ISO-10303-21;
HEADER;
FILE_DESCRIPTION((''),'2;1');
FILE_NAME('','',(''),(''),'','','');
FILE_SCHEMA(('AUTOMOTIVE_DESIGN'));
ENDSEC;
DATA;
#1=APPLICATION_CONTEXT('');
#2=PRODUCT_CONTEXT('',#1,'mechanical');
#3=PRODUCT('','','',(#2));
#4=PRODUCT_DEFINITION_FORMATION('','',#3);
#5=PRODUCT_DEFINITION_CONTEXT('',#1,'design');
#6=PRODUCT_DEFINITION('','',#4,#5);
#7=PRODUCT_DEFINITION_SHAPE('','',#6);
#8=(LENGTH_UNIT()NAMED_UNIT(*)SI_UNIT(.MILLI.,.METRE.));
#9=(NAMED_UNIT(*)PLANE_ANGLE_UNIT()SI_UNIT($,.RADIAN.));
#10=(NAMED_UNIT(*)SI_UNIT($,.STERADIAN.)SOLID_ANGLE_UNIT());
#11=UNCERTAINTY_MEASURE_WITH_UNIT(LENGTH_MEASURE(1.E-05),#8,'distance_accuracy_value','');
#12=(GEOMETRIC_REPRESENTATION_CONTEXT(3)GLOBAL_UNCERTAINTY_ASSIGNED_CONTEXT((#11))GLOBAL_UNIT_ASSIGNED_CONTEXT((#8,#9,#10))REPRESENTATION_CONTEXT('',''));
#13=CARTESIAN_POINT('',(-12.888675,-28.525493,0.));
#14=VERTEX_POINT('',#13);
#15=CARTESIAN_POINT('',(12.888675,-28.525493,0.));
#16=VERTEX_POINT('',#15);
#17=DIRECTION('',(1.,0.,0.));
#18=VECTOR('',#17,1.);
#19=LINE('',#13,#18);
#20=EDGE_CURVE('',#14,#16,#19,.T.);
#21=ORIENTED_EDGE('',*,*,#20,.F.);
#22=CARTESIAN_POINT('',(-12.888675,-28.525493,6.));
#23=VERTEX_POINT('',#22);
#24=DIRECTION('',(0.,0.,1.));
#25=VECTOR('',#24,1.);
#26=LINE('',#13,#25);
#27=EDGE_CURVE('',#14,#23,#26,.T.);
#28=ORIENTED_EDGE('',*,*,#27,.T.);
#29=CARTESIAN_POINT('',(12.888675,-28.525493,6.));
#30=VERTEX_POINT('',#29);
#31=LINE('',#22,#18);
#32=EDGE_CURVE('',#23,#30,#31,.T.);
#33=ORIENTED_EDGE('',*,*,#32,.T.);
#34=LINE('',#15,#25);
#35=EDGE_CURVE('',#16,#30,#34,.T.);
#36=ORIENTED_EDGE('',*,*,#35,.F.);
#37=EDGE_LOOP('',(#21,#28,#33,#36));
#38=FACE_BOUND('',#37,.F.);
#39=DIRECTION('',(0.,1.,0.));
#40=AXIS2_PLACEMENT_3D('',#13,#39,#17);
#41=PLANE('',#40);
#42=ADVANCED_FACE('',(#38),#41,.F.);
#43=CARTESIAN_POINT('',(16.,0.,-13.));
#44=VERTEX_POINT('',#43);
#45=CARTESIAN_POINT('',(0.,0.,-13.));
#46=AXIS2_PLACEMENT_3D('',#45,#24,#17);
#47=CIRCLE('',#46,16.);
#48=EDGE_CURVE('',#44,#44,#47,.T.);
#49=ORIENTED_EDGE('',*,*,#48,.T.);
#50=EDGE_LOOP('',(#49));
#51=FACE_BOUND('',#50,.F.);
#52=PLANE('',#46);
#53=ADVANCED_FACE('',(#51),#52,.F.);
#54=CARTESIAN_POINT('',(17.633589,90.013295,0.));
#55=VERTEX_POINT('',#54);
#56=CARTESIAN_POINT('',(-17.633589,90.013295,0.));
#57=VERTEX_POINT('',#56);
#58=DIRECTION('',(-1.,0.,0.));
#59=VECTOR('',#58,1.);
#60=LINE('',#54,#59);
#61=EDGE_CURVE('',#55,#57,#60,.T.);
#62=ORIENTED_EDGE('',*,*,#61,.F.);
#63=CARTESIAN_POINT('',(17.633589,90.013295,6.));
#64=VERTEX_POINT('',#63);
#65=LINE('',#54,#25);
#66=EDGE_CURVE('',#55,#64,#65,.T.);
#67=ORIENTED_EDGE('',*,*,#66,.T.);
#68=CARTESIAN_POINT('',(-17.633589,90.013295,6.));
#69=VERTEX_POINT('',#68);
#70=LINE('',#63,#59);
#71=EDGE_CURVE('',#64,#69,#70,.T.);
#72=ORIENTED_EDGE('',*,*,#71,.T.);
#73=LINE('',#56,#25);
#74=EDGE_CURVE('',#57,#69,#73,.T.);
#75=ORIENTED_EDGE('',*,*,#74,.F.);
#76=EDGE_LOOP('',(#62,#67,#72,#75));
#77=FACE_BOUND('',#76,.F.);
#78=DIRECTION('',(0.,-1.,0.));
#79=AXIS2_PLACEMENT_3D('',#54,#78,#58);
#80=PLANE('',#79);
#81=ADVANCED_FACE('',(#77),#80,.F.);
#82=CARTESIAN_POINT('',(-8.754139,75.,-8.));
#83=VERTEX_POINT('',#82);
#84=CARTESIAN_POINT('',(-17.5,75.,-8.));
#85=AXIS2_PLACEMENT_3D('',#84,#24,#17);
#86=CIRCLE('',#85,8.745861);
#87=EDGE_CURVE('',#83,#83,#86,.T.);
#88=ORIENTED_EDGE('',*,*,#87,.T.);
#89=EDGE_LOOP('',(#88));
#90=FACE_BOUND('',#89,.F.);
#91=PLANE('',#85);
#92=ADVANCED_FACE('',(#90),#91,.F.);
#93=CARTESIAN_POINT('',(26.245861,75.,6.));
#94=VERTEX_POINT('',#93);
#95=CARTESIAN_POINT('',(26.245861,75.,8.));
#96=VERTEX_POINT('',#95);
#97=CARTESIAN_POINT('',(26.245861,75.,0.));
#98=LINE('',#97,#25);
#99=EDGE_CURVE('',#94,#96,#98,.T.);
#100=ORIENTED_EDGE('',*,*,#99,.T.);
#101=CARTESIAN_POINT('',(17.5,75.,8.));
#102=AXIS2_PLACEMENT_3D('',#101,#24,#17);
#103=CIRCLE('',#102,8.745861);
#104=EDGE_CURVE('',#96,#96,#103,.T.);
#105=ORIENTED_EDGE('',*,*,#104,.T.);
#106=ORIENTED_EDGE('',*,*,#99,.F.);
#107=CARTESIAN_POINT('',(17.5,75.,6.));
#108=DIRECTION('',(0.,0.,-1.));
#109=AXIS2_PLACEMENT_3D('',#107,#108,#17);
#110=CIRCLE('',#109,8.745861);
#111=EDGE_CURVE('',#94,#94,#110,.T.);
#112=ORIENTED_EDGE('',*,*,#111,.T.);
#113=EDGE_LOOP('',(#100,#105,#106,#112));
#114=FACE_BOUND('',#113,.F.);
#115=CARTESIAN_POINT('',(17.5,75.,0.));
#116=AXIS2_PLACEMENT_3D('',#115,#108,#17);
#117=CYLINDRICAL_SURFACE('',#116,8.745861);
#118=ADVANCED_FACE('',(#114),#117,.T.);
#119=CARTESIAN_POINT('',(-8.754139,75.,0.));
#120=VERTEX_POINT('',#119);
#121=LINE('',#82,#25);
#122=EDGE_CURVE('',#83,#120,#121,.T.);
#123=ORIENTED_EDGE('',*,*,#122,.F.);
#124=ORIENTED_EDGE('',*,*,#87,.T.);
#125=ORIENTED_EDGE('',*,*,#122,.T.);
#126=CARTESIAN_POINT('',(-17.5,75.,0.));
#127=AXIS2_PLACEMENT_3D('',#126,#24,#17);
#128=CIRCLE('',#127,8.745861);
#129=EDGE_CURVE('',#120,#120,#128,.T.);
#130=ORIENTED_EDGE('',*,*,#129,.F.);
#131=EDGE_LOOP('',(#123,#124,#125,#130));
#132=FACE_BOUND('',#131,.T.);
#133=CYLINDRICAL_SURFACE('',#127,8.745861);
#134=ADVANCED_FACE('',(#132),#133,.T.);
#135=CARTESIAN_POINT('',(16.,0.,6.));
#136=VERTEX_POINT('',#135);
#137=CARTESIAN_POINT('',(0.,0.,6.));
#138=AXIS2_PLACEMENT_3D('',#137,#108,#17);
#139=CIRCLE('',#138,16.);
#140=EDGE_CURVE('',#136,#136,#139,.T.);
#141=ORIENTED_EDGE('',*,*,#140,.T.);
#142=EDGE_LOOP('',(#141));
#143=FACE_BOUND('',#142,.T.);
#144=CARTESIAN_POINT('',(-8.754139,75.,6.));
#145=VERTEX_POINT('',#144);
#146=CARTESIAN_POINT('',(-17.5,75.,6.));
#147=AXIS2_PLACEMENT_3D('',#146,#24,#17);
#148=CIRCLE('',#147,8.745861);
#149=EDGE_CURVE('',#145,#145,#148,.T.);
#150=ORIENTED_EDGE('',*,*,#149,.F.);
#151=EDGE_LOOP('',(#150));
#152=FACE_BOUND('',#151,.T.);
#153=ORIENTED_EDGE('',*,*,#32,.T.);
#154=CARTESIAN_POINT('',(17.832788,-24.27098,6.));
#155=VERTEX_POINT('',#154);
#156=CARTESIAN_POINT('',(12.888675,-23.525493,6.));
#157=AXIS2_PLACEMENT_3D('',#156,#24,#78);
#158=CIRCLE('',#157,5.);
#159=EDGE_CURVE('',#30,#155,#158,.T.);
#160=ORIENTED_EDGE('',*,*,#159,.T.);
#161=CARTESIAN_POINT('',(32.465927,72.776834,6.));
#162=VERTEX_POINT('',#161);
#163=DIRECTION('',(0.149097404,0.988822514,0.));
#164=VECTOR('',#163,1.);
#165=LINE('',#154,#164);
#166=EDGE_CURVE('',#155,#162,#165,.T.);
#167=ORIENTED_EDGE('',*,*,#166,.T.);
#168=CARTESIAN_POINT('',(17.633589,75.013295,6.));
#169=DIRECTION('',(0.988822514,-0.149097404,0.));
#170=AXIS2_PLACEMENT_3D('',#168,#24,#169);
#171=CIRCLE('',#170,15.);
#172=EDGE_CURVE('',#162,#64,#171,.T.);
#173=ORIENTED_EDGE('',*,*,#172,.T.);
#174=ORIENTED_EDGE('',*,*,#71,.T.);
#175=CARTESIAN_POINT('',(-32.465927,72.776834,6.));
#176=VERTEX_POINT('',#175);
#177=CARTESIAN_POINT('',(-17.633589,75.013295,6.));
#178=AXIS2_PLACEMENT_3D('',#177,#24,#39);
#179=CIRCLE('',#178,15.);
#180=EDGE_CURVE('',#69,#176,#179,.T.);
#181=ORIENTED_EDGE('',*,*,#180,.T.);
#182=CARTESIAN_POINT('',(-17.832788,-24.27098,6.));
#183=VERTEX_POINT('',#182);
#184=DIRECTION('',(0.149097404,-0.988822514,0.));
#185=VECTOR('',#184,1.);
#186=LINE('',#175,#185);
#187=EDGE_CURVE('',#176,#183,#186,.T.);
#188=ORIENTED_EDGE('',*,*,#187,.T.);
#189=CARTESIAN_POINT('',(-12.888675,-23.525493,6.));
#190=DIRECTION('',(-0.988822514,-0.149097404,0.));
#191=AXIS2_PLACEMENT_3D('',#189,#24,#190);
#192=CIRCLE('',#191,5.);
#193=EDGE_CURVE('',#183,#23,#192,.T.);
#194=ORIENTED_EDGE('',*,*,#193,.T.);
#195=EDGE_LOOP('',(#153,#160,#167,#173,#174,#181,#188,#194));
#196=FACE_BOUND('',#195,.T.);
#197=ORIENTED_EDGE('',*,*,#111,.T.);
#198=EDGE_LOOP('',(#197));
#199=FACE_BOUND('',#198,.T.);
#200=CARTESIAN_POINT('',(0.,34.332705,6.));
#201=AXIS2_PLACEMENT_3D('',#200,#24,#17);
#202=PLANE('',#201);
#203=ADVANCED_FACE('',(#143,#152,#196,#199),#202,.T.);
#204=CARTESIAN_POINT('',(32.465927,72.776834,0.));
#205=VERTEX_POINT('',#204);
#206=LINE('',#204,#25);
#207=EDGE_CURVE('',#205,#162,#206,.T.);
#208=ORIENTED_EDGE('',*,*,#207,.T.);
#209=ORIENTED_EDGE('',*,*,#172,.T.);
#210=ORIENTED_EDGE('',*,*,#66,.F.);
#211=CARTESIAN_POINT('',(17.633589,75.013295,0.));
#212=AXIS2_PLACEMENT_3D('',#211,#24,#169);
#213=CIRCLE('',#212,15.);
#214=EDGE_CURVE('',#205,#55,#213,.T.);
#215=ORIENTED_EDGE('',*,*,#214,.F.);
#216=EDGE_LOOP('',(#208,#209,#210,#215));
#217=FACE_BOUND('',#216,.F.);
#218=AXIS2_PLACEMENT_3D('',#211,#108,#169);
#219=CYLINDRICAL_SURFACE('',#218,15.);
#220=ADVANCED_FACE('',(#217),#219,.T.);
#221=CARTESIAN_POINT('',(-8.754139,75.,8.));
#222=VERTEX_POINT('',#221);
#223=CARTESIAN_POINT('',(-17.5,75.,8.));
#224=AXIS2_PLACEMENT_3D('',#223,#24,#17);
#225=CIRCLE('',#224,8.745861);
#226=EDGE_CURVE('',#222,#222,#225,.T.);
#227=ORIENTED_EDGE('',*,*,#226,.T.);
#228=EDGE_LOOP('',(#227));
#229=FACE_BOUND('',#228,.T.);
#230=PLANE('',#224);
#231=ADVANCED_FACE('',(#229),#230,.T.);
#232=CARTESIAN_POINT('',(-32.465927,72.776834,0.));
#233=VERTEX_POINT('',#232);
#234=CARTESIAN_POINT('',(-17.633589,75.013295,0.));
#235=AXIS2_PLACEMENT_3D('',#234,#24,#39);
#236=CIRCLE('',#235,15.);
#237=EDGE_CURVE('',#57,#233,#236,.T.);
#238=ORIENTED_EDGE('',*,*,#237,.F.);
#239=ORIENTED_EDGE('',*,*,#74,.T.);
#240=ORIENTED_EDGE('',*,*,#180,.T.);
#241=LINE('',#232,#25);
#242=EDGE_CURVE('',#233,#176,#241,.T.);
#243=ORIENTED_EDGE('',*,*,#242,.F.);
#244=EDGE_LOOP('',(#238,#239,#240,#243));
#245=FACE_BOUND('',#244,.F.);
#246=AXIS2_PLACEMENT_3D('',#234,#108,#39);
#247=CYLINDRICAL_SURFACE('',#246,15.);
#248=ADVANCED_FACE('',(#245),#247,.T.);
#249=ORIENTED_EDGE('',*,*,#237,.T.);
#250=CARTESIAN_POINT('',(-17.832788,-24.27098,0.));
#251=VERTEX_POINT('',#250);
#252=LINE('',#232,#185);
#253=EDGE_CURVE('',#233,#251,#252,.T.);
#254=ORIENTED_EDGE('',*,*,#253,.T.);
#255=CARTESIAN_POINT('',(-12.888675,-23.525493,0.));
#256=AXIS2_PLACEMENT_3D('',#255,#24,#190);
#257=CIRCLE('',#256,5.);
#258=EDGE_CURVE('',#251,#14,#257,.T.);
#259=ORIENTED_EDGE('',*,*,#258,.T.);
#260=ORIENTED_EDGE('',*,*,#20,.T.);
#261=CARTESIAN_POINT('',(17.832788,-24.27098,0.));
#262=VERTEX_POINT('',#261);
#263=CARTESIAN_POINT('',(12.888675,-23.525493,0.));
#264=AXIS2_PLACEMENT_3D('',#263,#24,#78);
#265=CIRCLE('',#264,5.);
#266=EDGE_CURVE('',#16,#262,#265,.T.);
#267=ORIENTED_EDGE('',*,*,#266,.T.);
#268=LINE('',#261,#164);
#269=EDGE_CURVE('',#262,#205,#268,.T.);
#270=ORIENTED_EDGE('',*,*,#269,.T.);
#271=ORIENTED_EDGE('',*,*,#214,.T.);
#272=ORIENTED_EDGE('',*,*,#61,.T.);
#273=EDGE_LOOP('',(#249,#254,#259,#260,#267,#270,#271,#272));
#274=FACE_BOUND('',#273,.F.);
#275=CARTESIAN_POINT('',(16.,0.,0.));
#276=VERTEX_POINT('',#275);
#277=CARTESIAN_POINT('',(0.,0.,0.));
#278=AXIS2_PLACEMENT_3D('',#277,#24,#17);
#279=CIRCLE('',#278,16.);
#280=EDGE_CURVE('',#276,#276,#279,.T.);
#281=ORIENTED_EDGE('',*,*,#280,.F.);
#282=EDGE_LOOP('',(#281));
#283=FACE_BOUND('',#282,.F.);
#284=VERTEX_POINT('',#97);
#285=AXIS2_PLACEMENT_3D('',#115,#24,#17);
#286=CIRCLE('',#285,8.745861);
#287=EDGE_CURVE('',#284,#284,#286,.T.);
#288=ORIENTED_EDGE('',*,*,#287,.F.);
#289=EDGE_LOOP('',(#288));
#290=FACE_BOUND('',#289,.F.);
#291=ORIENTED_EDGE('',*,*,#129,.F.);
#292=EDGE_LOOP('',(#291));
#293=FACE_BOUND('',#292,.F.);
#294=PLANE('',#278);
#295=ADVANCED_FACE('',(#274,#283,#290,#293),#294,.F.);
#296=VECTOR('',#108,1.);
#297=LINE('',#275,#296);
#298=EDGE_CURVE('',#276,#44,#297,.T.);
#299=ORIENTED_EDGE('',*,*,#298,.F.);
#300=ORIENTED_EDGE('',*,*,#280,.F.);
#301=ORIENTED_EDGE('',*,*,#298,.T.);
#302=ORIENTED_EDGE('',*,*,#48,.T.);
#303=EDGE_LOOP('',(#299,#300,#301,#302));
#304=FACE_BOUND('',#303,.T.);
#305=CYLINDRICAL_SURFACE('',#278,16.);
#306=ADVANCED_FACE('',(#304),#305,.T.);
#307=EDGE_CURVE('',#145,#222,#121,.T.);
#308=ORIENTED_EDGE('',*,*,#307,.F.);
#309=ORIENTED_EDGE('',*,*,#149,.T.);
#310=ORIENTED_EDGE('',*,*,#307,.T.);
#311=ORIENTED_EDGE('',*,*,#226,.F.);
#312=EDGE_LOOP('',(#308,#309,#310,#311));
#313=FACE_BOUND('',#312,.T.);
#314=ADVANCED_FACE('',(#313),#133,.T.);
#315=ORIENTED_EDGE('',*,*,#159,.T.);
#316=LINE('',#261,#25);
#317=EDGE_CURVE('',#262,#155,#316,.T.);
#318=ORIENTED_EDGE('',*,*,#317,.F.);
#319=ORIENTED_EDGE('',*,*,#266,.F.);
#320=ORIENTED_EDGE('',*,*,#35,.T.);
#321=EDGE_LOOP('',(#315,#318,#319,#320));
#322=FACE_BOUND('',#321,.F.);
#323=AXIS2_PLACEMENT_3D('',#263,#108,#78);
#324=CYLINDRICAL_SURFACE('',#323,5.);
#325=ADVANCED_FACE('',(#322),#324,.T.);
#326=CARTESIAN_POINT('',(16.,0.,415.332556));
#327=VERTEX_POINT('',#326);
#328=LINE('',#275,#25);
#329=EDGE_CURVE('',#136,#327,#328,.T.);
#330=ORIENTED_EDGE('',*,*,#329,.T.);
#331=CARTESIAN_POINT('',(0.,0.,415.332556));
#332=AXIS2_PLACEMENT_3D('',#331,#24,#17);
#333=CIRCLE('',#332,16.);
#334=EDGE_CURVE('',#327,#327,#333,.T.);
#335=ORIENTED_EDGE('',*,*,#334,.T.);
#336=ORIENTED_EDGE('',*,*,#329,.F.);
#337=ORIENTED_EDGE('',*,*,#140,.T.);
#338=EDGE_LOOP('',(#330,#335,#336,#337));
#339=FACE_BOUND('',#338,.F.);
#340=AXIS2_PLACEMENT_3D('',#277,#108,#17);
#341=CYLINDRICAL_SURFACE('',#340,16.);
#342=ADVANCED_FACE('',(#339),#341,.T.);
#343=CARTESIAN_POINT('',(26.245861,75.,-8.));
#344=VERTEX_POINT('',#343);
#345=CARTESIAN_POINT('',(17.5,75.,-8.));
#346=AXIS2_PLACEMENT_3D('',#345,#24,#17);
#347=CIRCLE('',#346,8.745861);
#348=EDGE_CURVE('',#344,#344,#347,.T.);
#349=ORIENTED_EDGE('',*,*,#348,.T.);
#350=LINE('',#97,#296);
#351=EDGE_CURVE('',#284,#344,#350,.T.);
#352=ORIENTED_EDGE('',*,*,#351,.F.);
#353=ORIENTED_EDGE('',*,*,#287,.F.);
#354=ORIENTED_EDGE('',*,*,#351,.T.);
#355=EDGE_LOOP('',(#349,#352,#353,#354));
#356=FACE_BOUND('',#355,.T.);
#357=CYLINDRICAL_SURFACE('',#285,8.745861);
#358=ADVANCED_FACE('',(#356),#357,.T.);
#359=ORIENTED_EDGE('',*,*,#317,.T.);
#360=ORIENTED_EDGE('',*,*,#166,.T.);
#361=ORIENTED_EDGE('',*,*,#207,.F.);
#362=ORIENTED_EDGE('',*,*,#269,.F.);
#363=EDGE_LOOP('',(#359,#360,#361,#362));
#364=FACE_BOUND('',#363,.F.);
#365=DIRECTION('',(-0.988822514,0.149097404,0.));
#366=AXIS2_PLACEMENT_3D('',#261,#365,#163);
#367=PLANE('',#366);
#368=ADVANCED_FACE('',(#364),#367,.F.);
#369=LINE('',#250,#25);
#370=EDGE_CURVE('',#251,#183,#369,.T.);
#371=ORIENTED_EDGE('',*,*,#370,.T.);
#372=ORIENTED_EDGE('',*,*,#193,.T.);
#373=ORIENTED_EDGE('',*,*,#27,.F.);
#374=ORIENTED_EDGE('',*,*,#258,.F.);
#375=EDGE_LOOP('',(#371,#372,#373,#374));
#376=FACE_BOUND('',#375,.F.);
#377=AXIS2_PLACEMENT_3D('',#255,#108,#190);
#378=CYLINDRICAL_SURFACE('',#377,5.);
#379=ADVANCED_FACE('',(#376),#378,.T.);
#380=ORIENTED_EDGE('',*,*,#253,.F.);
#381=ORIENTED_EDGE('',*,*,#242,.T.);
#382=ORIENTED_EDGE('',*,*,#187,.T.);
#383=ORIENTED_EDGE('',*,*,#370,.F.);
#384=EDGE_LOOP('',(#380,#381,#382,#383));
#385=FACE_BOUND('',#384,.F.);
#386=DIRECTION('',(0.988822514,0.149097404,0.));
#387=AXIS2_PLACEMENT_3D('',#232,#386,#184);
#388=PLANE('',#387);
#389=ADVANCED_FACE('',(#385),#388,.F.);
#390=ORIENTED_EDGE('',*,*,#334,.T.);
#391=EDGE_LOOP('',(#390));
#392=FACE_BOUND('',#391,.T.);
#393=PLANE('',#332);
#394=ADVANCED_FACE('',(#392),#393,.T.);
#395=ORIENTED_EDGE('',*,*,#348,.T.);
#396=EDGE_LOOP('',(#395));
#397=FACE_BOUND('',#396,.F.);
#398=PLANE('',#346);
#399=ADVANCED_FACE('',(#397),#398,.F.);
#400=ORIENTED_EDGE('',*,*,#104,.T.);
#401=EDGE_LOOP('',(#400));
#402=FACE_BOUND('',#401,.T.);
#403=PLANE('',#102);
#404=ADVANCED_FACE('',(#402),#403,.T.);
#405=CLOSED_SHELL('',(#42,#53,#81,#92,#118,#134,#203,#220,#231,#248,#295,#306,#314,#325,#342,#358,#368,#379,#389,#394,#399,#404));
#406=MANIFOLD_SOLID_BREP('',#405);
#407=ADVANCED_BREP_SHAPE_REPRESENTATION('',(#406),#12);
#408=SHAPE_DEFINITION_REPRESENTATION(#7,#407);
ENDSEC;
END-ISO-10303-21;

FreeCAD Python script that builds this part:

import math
import FreeCAD as App
import Part
import Sketcher

doc = App.newDocument("Part")
body = doc.addObject("PartDesign::Body", "Body")

# Sketch on XY plane
sketch1 = body.newObject("Sketcher::SketchObject", "Sketch")
sketch1.AttachmentSupport = (doc.getObject("XY_Plane"), [""])
sketch1.MapMode = "FlatFace"
sketch1.addGeometry([
    Part.LineSegment(App.Vector(-13, -29, 0), App.Vector(13, -29, 0)),  # 0
    Part.ArcOfCircle(Part.Circle(App.Vector(13, -24, 0), App.Vector(0, 0, 1), 5), math.radians(-90), math.radians(-9)),  # 1
    Part.LineSegment(App.Vector(18, -24, 0), App.Vector(32, 73, 0)),  # 2
    Part.ArcOfCircle(Part.Circle(App.Vector(18, 75, 0), App.Vector(0, 0, 1), 15), math.radians(-9), math.radians(90)),  # 3
    Part.LineSegment(App.Vector(18, 90, 0), App.Vector(-18, 90, 0)),  # 4
    Part.ArcOfCircle(Part.Circle(App.Vector(-18, 75, 0), App.Vector(0, 0, 1), 15), math.radians(90), math.radians(189)),  # 5
    Part.LineSegment(App.Vector(-32, 73, 0), App.Vector(-18, -24, 0)),  # 6
    Part.ArcOfCircle(Part.Circle(App.Vector(-13, -24, 0), App.Vector(0, 0, 1), 5), math.radians(-171), math.radians(-90)),  # 7
], False)
sketch1.addConstraint([
    Sketcher.Constraint("Tangent", 0, 2, 1, 1),
    Sketcher.Constraint("Tangent", 1, 2, 2, 1),
    Sketcher.Constraint("Tangent", 2, 2, 3, 1),
    Sketcher.Constraint("Tangent", 3, 2, 4, 1),
    Sketcher.Constraint("Tangent", 4, 2, 5, 1),
    Sketcher.Constraint("Tangent", 5, 2, 6, 1),
    Sketcher.Constraint("Tangent", 6, 2, 7, 1),
    Sketcher.Constraint("Tangent", 7, 2, 0, 1),
    Sketcher.Constraint("Horizontal", 0),
    Sketcher.Constraint("Horizontal", 4),
    Sketcher.Constraint("Equal", 3, 5),
    Sketcher.Constraint("Equal", 1, 7),
    Sketcher.Constraint("Symmetric", 2, 2, 5, 2, -2),
    Sketcher.Constraint("Radius", 1, 5.0),
    Sketcher.Constraint("Radius", 3, 15.0),
    Sketcher.Constraint("DistanceX", 0, 1, 0, 2, 25.77735),
    Sketcher.Constraint("DistanceX", 3, 3, 1, 2, 0.199199),
    Sketcher.Constraint("DistanceY", 1, 2, -1, 1, 24.27098),
    Sketcher.Constraint("DistanceY", 1, 3, 3, 3, 98.538789),
])
pad1 = body.newObject("PartDesign::Pad", "Pad")
pad1.Profile = sketch1
pad1.Length = 6

# Sketch on XY plane
sketch2 = body.newObject("Sketcher::SketchObject", "Sketch001")
sketch2.AttachmentSupport = (doc.getObject("XY_Plane"), [""])
sketch2.MapMode = "FlatFace"
sketch2.addGeometry(Part.Circle(App.Vector(0, 0, 0), App.Vector(0, 0, 1), 16), False)
sketch2.addConstraint([
    Sketcher.Constraint("Coincident", 0, 3, -1, 1),
    Sketcher.Constraint("Diameter", 0, 32.0),
])
pad2 = body.newObject("PartDesign::Pad", "Pad001")
pad2.Profile = sketch2
pad2.Length = 415.332556

# Sketch on XY plane
sketch3 = body.newObject("Sketcher::SketchObject", "Sketch002")
sketch3.AttachmentSupport = (doc.getObject("XY_Plane"), [""])
sketch3.MapMode = "FlatFace"
sketch3.addGeometry([
    Part.Circle(App.Vector(18, 75, 0), App.Vector(0, 0, 1), 9),
    Part.Circle(App.Vector(-18, 75, 0), App.Vector(0, 0, 1), 9),
], False)
sketch3.addConstraint([
    Sketcher.Constraint("Equal", 0, 1),
    Sketcher.Constraint("Symmetric", 0, 3, 1, 3, -2),
    Sketcher.Constraint("DistanceY", -1, 1, 0, 3, 75.0),
    Sketcher.Constraint("DistanceX", 1, 3, 0, 3, 35.0),
    Sketcher.Constraint("Diameter", 0, 17.491722),
])
pad3 = body.newObject("PartDesign::Pad", "Pad002")
pad3.Profile = sketch3
pad3.Length = 16
pad3.Midplane = True

# Sketch on XY plane
sketch4 = body.newObject("Sketcher::SketchObject", "Sketch003")
sketch4.AttachmentSupport = (doc.getObject("XY_Plane"), [""])
sketch4.MapMode = "FlatFace"
sketch4.addGeometry(Part.Circle(App.Vector(0, 0, 0), App.Vector(0, 0, 1), 16), False)
sketch4.addConstraint([
    Sketcher.Constraint("Coincident", 0, 3, -1, 1),
    Sketcher.Constraint("Diameter", 0, 32.0),
])
pad4 = body.newObject("PartDesign::Pad", "Pad003")
pad4.Profile = sketch4
pad4.Length = 13
pad4.Reversed = True

doc.recompute()
